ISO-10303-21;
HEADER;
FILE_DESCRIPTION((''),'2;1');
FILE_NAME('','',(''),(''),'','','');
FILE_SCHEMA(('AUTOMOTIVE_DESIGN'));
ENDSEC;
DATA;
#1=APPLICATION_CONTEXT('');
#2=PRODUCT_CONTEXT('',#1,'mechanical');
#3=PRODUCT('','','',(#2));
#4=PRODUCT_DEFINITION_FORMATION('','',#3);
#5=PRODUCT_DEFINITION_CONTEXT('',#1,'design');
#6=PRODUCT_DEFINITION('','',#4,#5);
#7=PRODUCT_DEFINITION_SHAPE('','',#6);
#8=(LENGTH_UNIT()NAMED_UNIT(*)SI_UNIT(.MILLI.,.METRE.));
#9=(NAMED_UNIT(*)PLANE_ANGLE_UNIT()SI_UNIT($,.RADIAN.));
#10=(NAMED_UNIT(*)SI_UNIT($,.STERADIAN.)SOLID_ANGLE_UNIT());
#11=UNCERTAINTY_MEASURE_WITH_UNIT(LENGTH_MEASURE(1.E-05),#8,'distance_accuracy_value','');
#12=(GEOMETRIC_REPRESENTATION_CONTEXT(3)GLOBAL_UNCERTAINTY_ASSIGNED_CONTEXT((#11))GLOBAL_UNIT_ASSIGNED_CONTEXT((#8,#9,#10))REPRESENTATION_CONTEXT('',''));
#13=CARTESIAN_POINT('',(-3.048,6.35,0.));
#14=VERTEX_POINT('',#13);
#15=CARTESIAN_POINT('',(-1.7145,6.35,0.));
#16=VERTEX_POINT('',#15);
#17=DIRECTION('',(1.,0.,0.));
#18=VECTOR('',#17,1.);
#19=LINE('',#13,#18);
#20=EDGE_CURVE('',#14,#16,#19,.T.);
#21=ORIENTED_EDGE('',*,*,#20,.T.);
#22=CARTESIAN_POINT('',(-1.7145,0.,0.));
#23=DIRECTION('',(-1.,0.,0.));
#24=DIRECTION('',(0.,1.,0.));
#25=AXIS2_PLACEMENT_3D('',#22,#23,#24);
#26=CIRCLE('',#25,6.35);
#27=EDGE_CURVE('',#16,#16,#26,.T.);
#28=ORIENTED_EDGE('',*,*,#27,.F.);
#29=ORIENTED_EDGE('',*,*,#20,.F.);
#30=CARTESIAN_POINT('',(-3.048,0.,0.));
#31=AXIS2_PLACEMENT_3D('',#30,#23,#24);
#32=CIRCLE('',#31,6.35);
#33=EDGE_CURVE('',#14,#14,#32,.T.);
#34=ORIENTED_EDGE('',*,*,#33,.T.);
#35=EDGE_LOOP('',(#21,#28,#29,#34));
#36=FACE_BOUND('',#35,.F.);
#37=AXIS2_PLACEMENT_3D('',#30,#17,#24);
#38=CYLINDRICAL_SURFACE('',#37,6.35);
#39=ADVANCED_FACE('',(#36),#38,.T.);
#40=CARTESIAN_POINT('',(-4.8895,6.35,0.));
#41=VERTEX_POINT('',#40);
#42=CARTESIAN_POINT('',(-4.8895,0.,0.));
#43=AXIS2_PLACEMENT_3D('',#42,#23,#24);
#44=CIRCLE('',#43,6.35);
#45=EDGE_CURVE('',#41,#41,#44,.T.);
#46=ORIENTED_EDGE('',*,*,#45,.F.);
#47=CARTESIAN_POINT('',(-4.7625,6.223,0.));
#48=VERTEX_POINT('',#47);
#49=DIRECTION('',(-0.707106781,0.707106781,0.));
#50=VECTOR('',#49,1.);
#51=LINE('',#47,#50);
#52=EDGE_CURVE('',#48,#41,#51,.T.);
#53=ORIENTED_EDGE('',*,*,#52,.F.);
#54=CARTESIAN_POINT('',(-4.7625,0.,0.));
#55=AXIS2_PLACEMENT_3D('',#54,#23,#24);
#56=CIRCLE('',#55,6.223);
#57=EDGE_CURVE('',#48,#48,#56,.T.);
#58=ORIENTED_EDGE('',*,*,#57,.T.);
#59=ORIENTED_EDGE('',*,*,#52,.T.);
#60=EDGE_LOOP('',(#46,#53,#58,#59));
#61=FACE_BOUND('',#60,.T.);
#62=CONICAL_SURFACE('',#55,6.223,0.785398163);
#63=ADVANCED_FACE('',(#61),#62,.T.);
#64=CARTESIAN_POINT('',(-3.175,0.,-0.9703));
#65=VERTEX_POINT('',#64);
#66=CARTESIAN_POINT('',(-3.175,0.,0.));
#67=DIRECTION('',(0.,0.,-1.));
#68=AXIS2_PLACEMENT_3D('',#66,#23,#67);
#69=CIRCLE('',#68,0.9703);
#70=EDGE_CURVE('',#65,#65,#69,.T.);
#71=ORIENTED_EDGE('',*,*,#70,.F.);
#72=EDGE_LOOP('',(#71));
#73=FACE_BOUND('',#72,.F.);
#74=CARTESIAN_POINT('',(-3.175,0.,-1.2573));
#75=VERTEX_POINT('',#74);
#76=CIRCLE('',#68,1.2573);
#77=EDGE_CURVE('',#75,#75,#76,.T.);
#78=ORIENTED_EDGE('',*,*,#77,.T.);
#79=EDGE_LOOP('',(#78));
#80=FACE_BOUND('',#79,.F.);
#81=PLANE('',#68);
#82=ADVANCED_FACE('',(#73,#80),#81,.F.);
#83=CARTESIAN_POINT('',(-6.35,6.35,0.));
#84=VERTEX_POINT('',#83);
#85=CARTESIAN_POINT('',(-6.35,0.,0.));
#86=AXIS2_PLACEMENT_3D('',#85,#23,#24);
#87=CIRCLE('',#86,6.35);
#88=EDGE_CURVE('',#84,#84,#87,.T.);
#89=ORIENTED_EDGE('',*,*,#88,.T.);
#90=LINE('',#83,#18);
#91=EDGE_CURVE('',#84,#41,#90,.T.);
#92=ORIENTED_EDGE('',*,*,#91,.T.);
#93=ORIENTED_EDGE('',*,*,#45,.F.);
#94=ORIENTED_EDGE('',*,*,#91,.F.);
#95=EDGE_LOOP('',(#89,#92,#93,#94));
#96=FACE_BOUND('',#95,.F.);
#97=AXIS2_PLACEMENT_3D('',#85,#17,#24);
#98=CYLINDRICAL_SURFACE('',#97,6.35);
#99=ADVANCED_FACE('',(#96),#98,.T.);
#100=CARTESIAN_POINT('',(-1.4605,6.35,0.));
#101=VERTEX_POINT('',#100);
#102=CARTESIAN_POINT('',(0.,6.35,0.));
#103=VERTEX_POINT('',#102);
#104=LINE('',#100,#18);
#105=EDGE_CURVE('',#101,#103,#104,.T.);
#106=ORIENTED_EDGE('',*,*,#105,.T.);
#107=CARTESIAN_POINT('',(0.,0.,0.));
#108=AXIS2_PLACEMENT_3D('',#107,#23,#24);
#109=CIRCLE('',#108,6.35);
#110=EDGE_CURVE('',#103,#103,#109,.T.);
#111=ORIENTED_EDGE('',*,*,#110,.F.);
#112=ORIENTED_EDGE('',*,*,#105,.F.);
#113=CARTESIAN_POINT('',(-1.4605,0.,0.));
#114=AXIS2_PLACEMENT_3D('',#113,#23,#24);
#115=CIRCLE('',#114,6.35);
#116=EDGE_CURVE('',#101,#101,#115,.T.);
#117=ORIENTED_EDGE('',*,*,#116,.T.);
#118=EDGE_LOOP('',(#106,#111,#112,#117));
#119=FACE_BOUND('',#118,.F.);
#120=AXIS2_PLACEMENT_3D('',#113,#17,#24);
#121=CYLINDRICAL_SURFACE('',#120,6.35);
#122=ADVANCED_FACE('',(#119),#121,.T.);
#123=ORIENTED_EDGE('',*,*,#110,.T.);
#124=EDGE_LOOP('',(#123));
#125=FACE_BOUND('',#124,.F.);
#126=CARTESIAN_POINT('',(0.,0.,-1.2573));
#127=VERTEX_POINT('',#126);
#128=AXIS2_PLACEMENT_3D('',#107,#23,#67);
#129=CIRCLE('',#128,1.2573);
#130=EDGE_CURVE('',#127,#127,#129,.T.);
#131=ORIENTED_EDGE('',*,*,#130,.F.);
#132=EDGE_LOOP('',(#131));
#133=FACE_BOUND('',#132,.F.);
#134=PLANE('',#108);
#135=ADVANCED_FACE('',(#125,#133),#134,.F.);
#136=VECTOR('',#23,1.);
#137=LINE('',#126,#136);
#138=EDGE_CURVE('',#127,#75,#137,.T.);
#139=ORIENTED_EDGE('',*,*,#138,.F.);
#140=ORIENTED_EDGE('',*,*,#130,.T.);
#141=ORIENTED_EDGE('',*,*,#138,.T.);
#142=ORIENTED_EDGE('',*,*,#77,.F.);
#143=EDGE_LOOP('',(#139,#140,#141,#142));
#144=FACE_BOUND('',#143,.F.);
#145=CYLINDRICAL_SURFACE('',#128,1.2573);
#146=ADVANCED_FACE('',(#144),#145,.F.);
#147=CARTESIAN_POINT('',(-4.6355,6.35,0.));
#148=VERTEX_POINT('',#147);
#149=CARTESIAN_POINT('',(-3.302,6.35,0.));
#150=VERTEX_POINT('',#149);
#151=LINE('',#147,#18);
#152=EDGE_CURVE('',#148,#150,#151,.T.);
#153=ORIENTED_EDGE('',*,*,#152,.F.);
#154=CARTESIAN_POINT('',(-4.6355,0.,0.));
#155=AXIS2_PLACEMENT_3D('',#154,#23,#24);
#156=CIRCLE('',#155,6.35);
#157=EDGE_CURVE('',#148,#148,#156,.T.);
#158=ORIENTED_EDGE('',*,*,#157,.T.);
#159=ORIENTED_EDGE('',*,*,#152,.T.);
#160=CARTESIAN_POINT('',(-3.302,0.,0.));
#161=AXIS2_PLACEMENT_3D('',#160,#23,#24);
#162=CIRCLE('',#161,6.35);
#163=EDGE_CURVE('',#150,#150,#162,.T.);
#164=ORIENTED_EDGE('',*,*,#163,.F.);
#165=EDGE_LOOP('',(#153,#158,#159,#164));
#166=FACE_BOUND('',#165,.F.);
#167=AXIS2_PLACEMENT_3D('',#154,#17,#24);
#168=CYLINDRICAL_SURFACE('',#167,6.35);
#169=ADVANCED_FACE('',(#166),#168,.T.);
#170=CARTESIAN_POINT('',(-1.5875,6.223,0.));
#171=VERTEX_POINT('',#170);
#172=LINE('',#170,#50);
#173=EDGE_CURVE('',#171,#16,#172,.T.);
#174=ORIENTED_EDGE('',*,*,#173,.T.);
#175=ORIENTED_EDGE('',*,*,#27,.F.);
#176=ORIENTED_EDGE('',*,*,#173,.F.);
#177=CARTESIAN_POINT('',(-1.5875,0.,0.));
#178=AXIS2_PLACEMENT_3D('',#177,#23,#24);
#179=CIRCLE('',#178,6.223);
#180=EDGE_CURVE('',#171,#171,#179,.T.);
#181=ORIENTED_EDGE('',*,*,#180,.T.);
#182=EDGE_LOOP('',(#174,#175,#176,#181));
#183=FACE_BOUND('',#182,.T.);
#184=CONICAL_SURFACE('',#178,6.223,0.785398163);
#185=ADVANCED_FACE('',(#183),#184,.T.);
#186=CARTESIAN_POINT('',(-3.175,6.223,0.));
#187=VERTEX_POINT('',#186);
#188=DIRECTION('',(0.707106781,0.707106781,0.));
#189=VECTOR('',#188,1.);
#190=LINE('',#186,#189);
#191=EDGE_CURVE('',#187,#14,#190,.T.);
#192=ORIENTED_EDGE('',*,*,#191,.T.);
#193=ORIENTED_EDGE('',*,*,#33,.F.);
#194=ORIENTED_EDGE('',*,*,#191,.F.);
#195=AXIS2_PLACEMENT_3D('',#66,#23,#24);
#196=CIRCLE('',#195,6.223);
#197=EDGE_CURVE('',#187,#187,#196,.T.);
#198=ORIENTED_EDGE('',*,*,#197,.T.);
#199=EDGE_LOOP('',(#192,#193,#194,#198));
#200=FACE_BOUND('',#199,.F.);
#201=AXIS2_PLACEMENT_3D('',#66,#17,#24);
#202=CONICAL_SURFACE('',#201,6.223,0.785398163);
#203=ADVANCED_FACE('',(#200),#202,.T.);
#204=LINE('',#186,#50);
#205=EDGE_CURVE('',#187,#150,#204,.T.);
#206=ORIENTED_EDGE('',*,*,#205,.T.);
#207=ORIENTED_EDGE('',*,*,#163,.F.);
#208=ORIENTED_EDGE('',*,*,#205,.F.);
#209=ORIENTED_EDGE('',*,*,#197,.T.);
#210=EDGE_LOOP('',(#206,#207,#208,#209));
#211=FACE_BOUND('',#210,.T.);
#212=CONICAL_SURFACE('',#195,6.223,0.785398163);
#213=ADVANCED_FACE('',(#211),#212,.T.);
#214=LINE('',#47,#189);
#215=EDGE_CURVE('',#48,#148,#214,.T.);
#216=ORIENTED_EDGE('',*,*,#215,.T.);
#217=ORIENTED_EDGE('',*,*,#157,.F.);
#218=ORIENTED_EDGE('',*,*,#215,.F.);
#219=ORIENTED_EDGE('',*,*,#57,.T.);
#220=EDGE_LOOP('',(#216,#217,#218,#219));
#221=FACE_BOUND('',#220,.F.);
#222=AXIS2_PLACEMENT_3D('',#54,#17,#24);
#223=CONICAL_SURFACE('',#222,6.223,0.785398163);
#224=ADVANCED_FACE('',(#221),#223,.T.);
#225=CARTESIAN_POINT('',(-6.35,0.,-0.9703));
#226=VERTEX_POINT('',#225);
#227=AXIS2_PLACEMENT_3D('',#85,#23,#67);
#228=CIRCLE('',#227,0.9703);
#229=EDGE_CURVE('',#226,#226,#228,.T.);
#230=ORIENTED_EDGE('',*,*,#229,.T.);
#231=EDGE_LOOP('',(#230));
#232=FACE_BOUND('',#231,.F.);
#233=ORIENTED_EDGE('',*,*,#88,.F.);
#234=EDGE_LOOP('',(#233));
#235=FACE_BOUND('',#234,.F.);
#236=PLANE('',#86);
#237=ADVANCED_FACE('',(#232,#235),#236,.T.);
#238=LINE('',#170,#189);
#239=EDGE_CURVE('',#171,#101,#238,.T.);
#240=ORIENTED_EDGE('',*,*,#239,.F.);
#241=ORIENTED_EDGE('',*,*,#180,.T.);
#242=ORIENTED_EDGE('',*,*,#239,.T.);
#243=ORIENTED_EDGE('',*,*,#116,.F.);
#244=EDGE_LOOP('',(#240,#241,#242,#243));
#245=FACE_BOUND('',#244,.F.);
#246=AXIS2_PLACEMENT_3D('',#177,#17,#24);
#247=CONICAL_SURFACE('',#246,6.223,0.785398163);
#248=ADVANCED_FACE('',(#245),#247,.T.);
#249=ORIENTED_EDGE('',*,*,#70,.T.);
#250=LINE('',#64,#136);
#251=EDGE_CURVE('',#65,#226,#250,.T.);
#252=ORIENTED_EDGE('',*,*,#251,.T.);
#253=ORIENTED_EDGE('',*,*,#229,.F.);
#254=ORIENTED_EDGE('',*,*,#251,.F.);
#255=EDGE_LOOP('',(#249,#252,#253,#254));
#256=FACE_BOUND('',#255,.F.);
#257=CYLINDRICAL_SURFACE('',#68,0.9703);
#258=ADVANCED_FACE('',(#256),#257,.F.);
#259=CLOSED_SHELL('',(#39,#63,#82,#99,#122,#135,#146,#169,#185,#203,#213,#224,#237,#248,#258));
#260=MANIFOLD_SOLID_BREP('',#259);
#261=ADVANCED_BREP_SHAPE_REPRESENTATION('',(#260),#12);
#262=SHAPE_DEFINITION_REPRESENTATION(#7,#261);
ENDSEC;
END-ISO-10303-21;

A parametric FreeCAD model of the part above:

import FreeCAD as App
import Part
import Sketcher
Q = App.Units.Quantity


def add_polygon(sketch, points):
    """Adds a closed chain of lines whose ends are joined by coincident constraints."""
    first, n = sketch.GeometryCount, len(points)
    for a, b in zip(points, points[1:] + points[:1]):
        sketch.addGeometry(Part.LineSegment(App.Vector(*a, 0), App.Vector(*b, 0)), False)
    for i in range(n):
        sketch.addConstraint(Sketcher.Constraint("Coincident", first + i, 2, first + (i + 1) % n, 1))

doc = App.newDocument("Part")
body = doc.addObject("PartDesign::Body", "Body")

# Sketch on XY plane
sketch1 = doc.addObject("Sketcher::SketchObject", "Sketch")
body.addObject(sketch1)
sketch1.AttachmentSupport = (doc.XY_Plane, [""])
sketch1.MapMode = "FlatFace"
add_polygon(sketch1, [(-6.35, 0), (0, 0), (0, 6.35), (-1.46, 6.35), (-1.59, 6.22), (-1.71, 6.35), (-3.05, 6.35), (-3.17, 6.22), (-3.3, 6.35), (-4.64, 6.35), (-4.76, 6.22), (-4.89, 6.35), (-6.35, 6.35)])  # lines 0-12
sketch1.addConstraint(Sketcher.Constraint("Horizontal", 0))
sketch1.addConstraint(Sketcher.Constraint("Vertical", 1))
sketch1.addConstraint(Sketcher.Constraint("Horizontal", 2))
sketch1.addConstraint(Sketcher.Constraint("Horizontal", 5))
sketch1.addConstraint(Sketcher.Constraint("Horizontal", 8))
sketch1.addConstraint(Sketcher.Constraint("Horizontal", 11))
sketch1.addConstraint(Sketcher.Constraint("Vertical", 12))
sketch1.addConstraint(Sketcher.Constraint("Coincident", 0, 2, -1, 1))
sketch1.addConstraint(Sketcher.Constraint("Perpendicular", 3, 4))
sketch1.addConstraint(Sketcher.Constraint("Perpendicular", 4, 6))
sketch1.addConstraint(Sketcher.Constraint("Perpendicular", 6, 7))
sketch1.addConstraint(Sketcher.Constraint("Perpendicular", 7, 9))
sketch1.addConstraint(Sketcher.Constraint("Perpendicular", 9, 10))
sketch1.addConstraint(Sketcher.Constraint("Horizontal", 2, 2, 4, 2))
sketch1.addConstraint(Sketcher.Constraint("Horizontal", 3, 2, 6, 2))
sketch1.addConstraint(Sketcher.Constraint("Horizontal", 5, 2, 7, 2))
sketch1.addConstraint(Sketcher.Constraint("Horizontal", 6, 2, 9, 2))
sketch1.addConstraint(Sketcher.Constraint("Horizontal", 8, 2, 10, 2))
sketch1.addConstraint(Sketcher.Constraint("Equal", 5, 8))
sketch1.addConstraint(Sketcher.Constraint("Equal", 2, 11))
sketch1.addConstraint(Sketcher.Constraint("Equal", 0, 1))
sketch1.addConstraint(Sketcher.Constraint("Equal", 3, 4))
sketch1.addConstraint(Sketcher.Constraint("DistanceX", 0, 1, 0, 2, Q("0.25 in")))
sketch1.addConstraint(Sketcher.Constraint("DistanceX", 3, 2, -1, 1, Q("0.0625 in")))
sketch1.addConstraint(Sketcher.Constraint("DistanceX", 3, 2, 2, 2, Q("0.005 in")))
revolution = doc.addObject("PartDesign::Revolution", "Revolution")
body.addObject(revolution)
revolution.Profile = sketch1
revolution.ReferenceAxis = (sketch1, ["H_Axis"])
revolution.Angle = 360

# Sketch on YZ plane
sketch2 = doc.addObject("Sketcher::SketchObject", "Sketch001")
body.addObject(sketch2)
sketch2.AttachmentSupport = (doc.YZ_Plane, [""])
sketch2.MapMode = "FlatFace"
sketch2.addGeometry(Part.Circle(App.Vector(0, 0, 0), App.Vector(0, 0, 1), 1), False)
sketch2.addConstraint(Sketcher.Constraint("Coincident", 0, 3, -1, 1))
sketch2.addConstraint(Sketcher.Constraint("Diameter", 0, Q("0.0764 in")))
doc.recompute()
hole = doc.addObject("PartDesign::Hole", "Hole")
body.addObject(hole)
hole.Profile = sketch2
hole.ThreadType = "None"
hole.Diameter = Q("0.0764016 in")
hole.DepthType = "ThroughAll"
hole.HoleCutType = "Counterbore"
hole.HoleCutDiameter = Q("0.099 in")
hole.HoleCutDepth = Q("0.125 in")

doc.recompute()
